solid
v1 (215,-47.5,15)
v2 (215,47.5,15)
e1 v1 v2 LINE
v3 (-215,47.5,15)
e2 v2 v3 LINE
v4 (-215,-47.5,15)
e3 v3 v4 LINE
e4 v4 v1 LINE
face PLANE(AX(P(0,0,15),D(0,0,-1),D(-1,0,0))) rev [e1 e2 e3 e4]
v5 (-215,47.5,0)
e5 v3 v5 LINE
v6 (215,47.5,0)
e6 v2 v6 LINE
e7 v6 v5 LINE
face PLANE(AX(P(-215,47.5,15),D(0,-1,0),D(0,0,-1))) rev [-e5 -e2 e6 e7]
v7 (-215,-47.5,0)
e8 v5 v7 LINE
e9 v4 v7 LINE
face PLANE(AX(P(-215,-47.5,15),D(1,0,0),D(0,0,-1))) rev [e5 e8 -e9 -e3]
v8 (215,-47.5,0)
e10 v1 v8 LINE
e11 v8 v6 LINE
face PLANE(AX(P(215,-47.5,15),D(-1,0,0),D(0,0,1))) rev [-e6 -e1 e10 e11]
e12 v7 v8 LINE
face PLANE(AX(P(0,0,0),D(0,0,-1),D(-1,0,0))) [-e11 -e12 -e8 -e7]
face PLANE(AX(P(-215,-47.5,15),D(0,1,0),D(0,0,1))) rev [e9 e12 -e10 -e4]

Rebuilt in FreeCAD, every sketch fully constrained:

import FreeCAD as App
import Part
import Sketcher
from FreeCAD import Vector

doc = App.newDocument("Part")
params = doc.addObject("Spreadsheet::Sheet", "Params")
for row, (alias, value) in enumerate([
    ("sketch1_width", "430 mm"),
    ("sketch1_height", "95 mm"),
    ("pad1_length", "15 mm"),
], start=1):
    params.set(f"A{row}", alias)
    params.set(f"B{row}", "=" + value)
    params.setAlias(f"B{row}", alias)

body = doc.addObject("PartDesign::Body", "Body")

# Sketch on XY plane
sketch1 = body.newObject("Sketcher::SketchObject", "Sketch")
sketch1.AttachmentSupport = (doc.getObject("XY_Plane"), [""])
sketch1.MapMode = "FlatFace"
sketch1.addGeometry([
    Part.LineSegment(Vector(-215, 47.5, 0), Vector(-215, -47.5, 0)),
    Part.LineSegment(Vector(-215, -47.5, 0), Vector(215, -47.5, 0)),
    Part.LineSegment(Vector(215, -47.5, 0), Vector(215, 47.5, 0)),
    Part.LineSegment(Vector(215, 47.5, 0), Vector(-215, 47.5, 0)),
], False)
sketch1.addConstraint([
    Sketcher.Constraint("Coincident", 0, 2, 1, 1),
    Sketcher.Constraint("Coincident", 1, 2, 2, 1),
    Sketcher.Constraint("Coincident", 2, 2, 3, 1),
    Sketcher.Constraint("Coincident", 3, 2, 0, 1),
    Sketcher.Constraint("Vertical", 0),
    Sketcher.Constraint("Horizontal", 1),
    Sketcher.Constraint("Vertical", 2),
    Sketcher.Constraint("Horizontal", 3),
    Sketcher.Constraint("Symmetric", 0, 2, 2, 2, -1, 1),
    Sketcher.Constraint("DistanceX", 1, 1, 1, 2, 430.0),
    Sketcher.Constraint("DistanceY", 0, 2, 0, 1, 95.0),
])
sketch1.setExpression("Constraints[9]", "Params.sketch1_width")
sketch1.setExpression("Constraints[10]", "Params.sketch1_height")
pad1 = body.newObject("PartDesign::Pad", "Pad")
pad1.Profile = sketch1
pad1.setExpression("Length", "Params.pad1_length")

doc.recompute()
